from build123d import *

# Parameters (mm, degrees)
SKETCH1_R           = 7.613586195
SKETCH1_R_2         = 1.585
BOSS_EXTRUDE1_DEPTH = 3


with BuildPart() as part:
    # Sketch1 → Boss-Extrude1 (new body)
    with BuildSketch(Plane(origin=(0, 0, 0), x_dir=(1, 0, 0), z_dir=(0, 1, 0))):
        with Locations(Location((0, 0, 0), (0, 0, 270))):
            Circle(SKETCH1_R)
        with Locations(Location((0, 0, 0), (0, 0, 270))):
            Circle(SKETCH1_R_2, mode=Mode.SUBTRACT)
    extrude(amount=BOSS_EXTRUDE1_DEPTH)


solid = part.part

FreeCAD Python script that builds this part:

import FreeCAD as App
import Part
import Sketcher
from FreeCAD import Vector
Q = App.Units.Quantity

doc = App.newDocument("Part")
body = doc.addObject("PartDesign::Body", "Body")

# Sketch on XZ plane
sketch1 = body.newObject("Sketcher::SketchObject", "Sketch")
sketch1.AttachmentSupport = (doc.getObject("XZ_Plane"), [""])
sketch1.MapMode = "FlatFace"
sketch1.addGeometry([
    Part.Circle(Vector(0, 0, 0), Vector(0, 0, 1), 7.6),
    Part.Circle(Vector(0, 0, 0), Vector(0, 0, 1), 1.6),
], False)
sketch1.addConstraint([
    Sketcher.Constraint("Coincident", 0, 3, -1, 1),
    Sketcher.Constraint("Coincident", 1, 3, -1, 1),
    Sketcher.Constraint("Diameter", 1, Q("3.17 mm")),
    Sketcher.Constraint("Diameter", 0, Q("15.227172 mm")),
])
pad1 = body.newObject("PartDesign::Pad", "Pad")
pad1.Profile = sketch1
pad1.Length = 3
pad1.Reversed = True

doc.recompute()
